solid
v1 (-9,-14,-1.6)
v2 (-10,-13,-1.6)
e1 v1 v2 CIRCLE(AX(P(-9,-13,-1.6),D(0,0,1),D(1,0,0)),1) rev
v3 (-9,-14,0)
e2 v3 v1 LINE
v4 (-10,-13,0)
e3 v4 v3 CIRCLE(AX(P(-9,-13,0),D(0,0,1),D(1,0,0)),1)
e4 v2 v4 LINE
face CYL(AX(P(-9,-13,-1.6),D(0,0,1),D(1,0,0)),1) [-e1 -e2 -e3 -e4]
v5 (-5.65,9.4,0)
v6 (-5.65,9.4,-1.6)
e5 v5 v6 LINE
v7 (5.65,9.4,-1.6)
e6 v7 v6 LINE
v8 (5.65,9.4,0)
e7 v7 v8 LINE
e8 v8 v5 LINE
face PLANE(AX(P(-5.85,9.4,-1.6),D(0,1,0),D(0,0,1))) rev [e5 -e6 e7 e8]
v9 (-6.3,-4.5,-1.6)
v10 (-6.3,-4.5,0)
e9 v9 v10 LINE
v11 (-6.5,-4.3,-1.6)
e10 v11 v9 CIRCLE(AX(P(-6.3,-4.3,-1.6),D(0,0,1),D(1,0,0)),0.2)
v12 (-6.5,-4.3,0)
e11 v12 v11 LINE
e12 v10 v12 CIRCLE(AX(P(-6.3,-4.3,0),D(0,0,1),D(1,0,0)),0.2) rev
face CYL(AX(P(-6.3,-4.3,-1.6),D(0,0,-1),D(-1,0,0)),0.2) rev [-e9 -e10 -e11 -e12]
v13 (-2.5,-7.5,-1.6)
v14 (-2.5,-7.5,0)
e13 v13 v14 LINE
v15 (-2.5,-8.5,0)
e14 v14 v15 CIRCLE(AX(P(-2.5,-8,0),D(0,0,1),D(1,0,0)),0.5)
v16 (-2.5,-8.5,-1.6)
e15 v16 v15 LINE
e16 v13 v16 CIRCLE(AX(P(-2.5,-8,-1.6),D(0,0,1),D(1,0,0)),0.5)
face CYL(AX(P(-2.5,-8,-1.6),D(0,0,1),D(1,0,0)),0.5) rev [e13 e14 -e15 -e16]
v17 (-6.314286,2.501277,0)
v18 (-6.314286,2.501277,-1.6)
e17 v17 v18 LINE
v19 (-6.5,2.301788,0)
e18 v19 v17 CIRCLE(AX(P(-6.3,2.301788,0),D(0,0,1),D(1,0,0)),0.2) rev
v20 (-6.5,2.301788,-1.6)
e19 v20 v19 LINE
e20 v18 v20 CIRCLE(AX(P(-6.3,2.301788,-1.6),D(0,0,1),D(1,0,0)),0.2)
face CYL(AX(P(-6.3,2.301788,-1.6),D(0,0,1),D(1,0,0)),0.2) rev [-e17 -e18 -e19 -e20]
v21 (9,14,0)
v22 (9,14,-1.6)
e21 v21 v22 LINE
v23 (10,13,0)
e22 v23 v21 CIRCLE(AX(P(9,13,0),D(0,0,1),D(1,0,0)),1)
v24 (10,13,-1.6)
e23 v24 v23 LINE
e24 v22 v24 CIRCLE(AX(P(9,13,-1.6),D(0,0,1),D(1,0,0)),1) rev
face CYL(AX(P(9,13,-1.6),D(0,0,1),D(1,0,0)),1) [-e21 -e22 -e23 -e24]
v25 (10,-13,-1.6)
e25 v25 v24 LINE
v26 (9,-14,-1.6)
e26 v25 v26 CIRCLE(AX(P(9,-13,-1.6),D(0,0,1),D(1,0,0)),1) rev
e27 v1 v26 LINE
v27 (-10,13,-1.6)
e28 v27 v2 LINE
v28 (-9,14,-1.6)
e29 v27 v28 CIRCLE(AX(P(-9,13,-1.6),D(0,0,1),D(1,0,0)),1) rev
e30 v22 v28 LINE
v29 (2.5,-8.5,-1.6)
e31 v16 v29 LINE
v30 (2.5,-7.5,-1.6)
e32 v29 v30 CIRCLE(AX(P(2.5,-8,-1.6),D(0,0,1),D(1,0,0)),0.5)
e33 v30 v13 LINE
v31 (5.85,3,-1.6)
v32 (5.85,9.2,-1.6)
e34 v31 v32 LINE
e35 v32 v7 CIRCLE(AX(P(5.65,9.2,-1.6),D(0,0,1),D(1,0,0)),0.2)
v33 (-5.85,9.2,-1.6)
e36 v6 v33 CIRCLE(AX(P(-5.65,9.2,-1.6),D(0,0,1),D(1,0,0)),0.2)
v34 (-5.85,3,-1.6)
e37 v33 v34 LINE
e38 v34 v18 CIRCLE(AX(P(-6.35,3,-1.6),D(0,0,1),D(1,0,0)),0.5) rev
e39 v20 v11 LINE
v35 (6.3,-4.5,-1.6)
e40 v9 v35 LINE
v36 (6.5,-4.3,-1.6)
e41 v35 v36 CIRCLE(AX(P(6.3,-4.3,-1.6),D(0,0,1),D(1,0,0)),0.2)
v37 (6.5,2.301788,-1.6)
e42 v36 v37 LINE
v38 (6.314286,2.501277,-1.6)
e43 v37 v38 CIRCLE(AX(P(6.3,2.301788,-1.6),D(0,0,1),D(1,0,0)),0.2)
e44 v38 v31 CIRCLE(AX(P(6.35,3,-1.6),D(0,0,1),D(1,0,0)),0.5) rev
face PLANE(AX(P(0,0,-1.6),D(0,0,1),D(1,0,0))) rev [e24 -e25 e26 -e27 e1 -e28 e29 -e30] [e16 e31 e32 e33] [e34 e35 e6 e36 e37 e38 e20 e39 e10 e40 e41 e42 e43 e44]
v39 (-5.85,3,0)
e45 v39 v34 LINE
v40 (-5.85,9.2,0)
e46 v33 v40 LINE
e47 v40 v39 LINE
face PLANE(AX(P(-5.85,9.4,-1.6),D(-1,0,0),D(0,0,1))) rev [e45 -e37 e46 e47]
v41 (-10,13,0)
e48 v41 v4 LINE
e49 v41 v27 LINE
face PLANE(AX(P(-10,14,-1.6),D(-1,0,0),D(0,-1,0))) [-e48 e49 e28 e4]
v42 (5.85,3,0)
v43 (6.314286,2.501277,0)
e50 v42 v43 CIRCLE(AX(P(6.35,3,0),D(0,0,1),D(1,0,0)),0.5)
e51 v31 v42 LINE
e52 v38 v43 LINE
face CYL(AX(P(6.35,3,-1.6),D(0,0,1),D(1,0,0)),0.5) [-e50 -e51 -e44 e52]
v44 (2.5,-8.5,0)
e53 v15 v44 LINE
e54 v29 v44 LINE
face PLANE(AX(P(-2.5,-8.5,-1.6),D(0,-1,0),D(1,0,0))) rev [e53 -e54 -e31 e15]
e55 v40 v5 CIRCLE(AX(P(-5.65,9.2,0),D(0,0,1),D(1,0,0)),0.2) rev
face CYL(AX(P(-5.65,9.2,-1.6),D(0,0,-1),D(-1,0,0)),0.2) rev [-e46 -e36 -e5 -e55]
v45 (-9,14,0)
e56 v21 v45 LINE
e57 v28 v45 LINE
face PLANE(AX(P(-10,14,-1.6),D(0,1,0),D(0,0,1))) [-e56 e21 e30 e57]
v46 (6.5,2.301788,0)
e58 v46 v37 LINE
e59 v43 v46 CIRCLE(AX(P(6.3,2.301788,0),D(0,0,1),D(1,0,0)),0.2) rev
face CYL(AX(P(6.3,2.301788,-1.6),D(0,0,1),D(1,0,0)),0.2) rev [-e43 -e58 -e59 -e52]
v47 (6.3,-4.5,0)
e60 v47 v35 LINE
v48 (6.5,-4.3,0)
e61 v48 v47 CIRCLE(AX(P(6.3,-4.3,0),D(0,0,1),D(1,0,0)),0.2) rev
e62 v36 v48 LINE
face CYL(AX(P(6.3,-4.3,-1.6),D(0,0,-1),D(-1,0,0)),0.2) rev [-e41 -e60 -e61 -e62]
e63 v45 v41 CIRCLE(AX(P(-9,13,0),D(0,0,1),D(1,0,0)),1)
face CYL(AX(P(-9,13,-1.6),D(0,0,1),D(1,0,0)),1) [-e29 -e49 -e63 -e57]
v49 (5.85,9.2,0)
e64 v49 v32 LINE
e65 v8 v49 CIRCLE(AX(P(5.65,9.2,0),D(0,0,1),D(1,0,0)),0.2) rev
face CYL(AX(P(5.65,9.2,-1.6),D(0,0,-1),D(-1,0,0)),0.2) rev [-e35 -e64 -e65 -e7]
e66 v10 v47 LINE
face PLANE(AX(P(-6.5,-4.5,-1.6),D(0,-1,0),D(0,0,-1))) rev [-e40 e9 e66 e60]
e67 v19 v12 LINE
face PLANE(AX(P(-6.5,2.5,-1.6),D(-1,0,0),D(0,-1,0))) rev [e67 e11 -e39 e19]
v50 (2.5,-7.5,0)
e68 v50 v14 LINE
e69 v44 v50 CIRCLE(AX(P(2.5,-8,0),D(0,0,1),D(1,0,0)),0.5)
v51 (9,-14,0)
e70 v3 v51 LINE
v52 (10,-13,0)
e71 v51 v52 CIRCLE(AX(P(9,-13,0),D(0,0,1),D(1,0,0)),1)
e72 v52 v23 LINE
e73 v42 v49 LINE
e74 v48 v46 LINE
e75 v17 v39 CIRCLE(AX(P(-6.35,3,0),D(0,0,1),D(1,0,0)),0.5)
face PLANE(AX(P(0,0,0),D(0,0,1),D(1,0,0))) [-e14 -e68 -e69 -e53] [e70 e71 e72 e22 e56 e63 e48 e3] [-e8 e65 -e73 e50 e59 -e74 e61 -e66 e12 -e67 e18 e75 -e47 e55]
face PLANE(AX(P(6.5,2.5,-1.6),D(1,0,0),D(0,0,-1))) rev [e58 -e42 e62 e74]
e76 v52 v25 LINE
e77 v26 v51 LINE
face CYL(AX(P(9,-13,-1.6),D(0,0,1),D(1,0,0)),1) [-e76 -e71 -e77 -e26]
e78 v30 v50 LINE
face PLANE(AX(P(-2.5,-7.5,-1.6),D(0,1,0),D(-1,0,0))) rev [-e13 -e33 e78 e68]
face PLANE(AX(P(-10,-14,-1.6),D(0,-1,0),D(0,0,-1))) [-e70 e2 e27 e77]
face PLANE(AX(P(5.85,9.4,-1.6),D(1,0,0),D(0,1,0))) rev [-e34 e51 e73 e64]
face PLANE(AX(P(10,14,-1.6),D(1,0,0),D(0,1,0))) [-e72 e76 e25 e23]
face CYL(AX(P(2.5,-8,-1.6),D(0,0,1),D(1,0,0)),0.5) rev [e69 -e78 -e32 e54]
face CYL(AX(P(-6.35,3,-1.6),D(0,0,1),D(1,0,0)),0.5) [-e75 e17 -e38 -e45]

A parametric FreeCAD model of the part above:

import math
import FreeCAD as App
import Part
import Sketcher
from FreeCAD import Vector


def edges_at(feature, points):
    """Names of the edges that pass closest to the given points."""
    edges = feature.Shape.Edges
    near = lambda p: min(range(len(edges)), key=lambda i: edges[i].distToShape(Part.Vertex(*p))[0])
    return sorted({f"Edge{near(p) + 1}" for p in points})


def add_polygon(sketch, points):
    """Adds a closed chain of lines whose ends are joined by coincident constraints."""
    first, n = sketch.GeometryCount, len(points)
    for a, b in zip(points, points[1:] + points[:1]):
        sketch.addGeometry(Part.LineSegment(App.Vector(*a, 0), App.Vector(*b, 0)), False)
    for i in range(n):
        sketch.addConstraint(Sketcher.Constraint("Coincident", first + i, 2, first + (i + 1) % n, 1))

doc = App.newDocument("Part")
params = doc.addObject("Spreadsheet::Sheet", "Params")
for row, (alias, value) in enumerate([
    ("sketch1_width", "20 mm"),
    ("sketch1_height", "28 mm"),
    ("pad1_length", "1.6 mm"),
    ("sketch2_radius", "0.5 mm"),
    ("sketch2_width", "5 mm"),
    ("sketch3_width", "13 mm"),
    ("sketch3_height", "7 mm"),
    ("sketch4_width", "11.7 mm"),
    ("sketch4_height", "6.9 mm"),
    ("fillet_radius", "0.5 mm"),
    ("fillet2_radius", "0.2 mm"),
    ("fillet3_radius", "1 mm"),
], start=1):
    params.set(f"A{row}", alias)
    params.set(f"B{row}", "=" + value)
    params.setAlias(f"B{row}", alias)

body = doc.addObject("PartDesign::Body", "Body")

# Sketch on XY plane
sketch1 = body.newObject("Sketcher::SketchObject", "Sketch")
sketch1.AttachmentSupport = (doc.getObject("XY_Plane"), [""])
sketch1.MapMode = "FlatFace"
add_polygon(sketch1, [(-10, 14), (-10, -14), (10, -14), (10, 14)])  # lines 0-3
sketch1.addConstraint([
    Sketcher.Constraint("Vertical", 0),
    Sketcher.Constraint("Horizontal", 1),
    Sketcher.Constraint("Vertical", 2),
    Sketcher.Constraint("Horizontal", 3),
    Sketcher.Constraint("Symmetric", 0, 2, 2, 2, -1, 1),
    Sketcher.Constraint("DistanceX", 1, 1, 1, 2, 20.0),
    Sketcher.Constraint("DistanceY", 0, 2, 0, 1, 28.0),
])
sketch1.setExpression("Constraints[9]", "Params.sketch1_width")
sketch1.setExpression("Constraints[10]", "Params.sketch1_height")
pad1 = body.newObject("PartDesign::Pad", "Pad")
pad1.Profile = sketch1
pad1.setExpression("Length", "Params.pad1_length")
pad1.Reversed = True

# Sketch on XY plane
sketch2 = body.newObject("Sketcher::SketchObject", "Sketch001")
sketch2.AttachmentSupport = (doc.getObject("XY_Plane"), [""])
sketch2.MapMode = "FlatFace"
sketch2.addGeometry([
    Part.LineSegment(Vector(2.5, -7.5, 0), Vector(-2.5, -7.5, 0)),
    Part.ArcOfCircle(Part.Circle(Vector(-2.5, -8, 0), Vector(0, 0, 1), 0.5), math.radians(90), math.radians(270)),
    Part.LineSegment(Vector(-2.5, -8.5, 0), Vector(2.5, -8.5, 0)),
    Part.ArcOfCircle(Part.Circle(Vector(2.5, -8, 0), Vector(0, 0, 1), 0.5), math.radians(-90), math.radians(90)),
], False)
sketch2.addConstraint([
    Sketcher.Constraint("Tangent", 0, 2, 1, 1),
    Sketcher.Constraint("Tangent", 1, 2, 2, 1),
    Sketcher.Constraint("Tangent", 2, 2, 3, 1),
    Sketcher.Constraint("Tangent", 3, 2, 0, 1),
    Sketcher.Constraint("Horizontal", 0),
    Sketcher.Constraint("Horizontal", 2),
    Sketcher.Constraint("Radius", 1, 0.5),
    Sketcher.Constraint("DistanceX", 0, 2, 0, 1, 5.0),
    Sketcher.Constraint("DistanceY", 1, 3, -1, 1, 8.0),
    Sketcher.Constraint("DistanceX", 1, 3, -1, 1, 2.5),
])
sketch2.setExpression("Constraints[6]", "Params.sketch2_radius")
sketch2.setExpression("Constraints[7]", "Params.sketch2_width")
pocket1 = body.newObject("PartDesign::Pocket", "Pocket")
pocket1.Profile = sketch2
pocket1.Type = "ThroughAll"

# Sketch on XY plane
sketch3 = body.newObject("Sketcher::SketchObject", "Sketch002")
sketch3.AttachmentSupport = (doc.getObject("XY_Plane"), [""])
sketch3.MapMode = "FlatFace"
add_polygon(sketch3, [(-6, 2), (-6, -4), (6, -4), (6, 2)])  # lines 0-3
sketch3.addConstraint([
    Sketcher.Constraint("Vertical", 0),
    Sketcher.Constraint("Horizontal", 1),
    Sketcher.Constraint("Vertical", 2),
    Sketcher.Constraint("Horizontal", 3),
    Sketcher.Constraint("DistanceX", 1, 1, 1, 2, 13.0),
    Sketcher.Constraint("DistanceY", 0, 2, 0, 1, 7.0),
    Sketcher.Constraint("DistanceX", 0, 2, -1, 1, 6.5),
    Sketcher.Constraint("DistanceY", 0, 2, -1, 1, 4.5),
])
sketch3.setExpression("Constraints[8]", "Params.sketch3_width")
sketch3.setExpression("Constraints[9]", "Params.sketch3_height")
pocket2 = body.newObject("PartDesign::Pocket", "Pocket001")
pocket2.Profile = sketch3
pocket2.Type = "ThroughAll"

# Sketch on XY plane
sketch4 = body.newObject("Sketcher::SketchObject", "Sketch003")
sketch4.AttachmentSupport = (doc.getObject("XY_Plane"), [""])
sketch4.MapMode = "FlatFace"
add_polygon(sketch4, [(-6, 9), (-6, 2), (6, 2), (6, 9)])  # lines 0-3
sketch4.addConstraint([
    Sketcher.Constraint("Vertical", 0),
    Sketcher.Constraint("Horizontal", 1),
    Sketcher.Constraint("Vertical", 2),
    Sketcher.Constraint("Horizontal", 3),
    Sketcher.Constraint("DistanceX", 1, 1, 1, 2, 11.7),
    Sketcher.Constraint("DistanceY", 0, 2, 0, 1, 6.9),
    Sketcher.Constraint("DistanceY", -1, 1, 0, 2, 2.5),
    Sketcher.Constraint("DistanceX", 0, 2, -1, 1, 5.85),
])
sketch4.setExpression("Constraints[8]", "Params.sketch4_width")
sketch4.setExpression("Constraints[9]", "Params.sketch4_height")
pocket3 = body.newObject("PartDesign::Pocket", "Pocket002")
pocket3.Profile = sketch4
pocket3.Type = "ThroughAll"
doc.recompute()

fillet = body.newObject("PartDesign::Fillet", "Fillet")
fillet.Base = (pocket3, edges_at(pocket3, [(5.85, 2.5, -0.8), (-5.85, 2.5, -0.8)]))
fillet.setExpression("Radius", "Params.fillet_radius")
doc.recompute()

fillet2 = body.newObject("PartDesign::Fillet", "Fillet001")
fillet2.Base = (fillet, edges_at(fillet, [
    (-6.5, -4.5, -0.8),
    (6.5, -4.5, -0.8),
    (6.5, 2.5, -0.8),
    (-6.5, 2.5, -0.8),
    (-5.85, 9.4, -0.8),
    (5.85, 9.4, -0.8),
]))
fillet2.setExpression("Radius", "Params.fillet2_radius")
doc.recompute()

fillet3 = body.newObject("PartDesign::Fillet", "Fillet002")
fillet3.Base = (fillet2, edges_at(fillet2, [
    (10, -14, -0.8),
    (-10, -14, -0.8),
    (-10, 14, -0.8),
    (10, 14, -0.8),
]))
fillet3.setExpression("Radius", "Params.fillet3_radius")

doc.recompute()
